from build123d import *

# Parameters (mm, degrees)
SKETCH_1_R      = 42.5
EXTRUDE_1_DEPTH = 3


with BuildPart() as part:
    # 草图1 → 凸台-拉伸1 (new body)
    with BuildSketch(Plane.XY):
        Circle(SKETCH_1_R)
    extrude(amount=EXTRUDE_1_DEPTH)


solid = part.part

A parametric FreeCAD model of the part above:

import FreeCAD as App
import Part
import Sketcher
Q = App.Units.Quantity

doc = App.newDocument("Part")
body = doc.addObject("PartDesign::Body", "Body")

# Sketch on XY plane
sketch1 = body.newObject("Sketcher::SketchObject", "Sketch")
sketch1.AttachmentSupport = (doc.getObject("XY_Plane"), [""])
sketch1.MapMode = "FlatFace"
sketch1.addGeometry(Part.Circle(App.Vector(0, 0, 0), App.Vector(0, 0, 1), 42), False)
sketch1.addConstraint([
    Sketcher.Constraint("Coincident", 0, 3, -1, 1),
    Sketcher.Constraint("Diameter", 0, Q("85 mm")),
])
pad1 = body.newObject("PartDesign::Pad", "Pad")
pad1.Profile = sketch1
pad1.Length = 3

doc.recompute()
